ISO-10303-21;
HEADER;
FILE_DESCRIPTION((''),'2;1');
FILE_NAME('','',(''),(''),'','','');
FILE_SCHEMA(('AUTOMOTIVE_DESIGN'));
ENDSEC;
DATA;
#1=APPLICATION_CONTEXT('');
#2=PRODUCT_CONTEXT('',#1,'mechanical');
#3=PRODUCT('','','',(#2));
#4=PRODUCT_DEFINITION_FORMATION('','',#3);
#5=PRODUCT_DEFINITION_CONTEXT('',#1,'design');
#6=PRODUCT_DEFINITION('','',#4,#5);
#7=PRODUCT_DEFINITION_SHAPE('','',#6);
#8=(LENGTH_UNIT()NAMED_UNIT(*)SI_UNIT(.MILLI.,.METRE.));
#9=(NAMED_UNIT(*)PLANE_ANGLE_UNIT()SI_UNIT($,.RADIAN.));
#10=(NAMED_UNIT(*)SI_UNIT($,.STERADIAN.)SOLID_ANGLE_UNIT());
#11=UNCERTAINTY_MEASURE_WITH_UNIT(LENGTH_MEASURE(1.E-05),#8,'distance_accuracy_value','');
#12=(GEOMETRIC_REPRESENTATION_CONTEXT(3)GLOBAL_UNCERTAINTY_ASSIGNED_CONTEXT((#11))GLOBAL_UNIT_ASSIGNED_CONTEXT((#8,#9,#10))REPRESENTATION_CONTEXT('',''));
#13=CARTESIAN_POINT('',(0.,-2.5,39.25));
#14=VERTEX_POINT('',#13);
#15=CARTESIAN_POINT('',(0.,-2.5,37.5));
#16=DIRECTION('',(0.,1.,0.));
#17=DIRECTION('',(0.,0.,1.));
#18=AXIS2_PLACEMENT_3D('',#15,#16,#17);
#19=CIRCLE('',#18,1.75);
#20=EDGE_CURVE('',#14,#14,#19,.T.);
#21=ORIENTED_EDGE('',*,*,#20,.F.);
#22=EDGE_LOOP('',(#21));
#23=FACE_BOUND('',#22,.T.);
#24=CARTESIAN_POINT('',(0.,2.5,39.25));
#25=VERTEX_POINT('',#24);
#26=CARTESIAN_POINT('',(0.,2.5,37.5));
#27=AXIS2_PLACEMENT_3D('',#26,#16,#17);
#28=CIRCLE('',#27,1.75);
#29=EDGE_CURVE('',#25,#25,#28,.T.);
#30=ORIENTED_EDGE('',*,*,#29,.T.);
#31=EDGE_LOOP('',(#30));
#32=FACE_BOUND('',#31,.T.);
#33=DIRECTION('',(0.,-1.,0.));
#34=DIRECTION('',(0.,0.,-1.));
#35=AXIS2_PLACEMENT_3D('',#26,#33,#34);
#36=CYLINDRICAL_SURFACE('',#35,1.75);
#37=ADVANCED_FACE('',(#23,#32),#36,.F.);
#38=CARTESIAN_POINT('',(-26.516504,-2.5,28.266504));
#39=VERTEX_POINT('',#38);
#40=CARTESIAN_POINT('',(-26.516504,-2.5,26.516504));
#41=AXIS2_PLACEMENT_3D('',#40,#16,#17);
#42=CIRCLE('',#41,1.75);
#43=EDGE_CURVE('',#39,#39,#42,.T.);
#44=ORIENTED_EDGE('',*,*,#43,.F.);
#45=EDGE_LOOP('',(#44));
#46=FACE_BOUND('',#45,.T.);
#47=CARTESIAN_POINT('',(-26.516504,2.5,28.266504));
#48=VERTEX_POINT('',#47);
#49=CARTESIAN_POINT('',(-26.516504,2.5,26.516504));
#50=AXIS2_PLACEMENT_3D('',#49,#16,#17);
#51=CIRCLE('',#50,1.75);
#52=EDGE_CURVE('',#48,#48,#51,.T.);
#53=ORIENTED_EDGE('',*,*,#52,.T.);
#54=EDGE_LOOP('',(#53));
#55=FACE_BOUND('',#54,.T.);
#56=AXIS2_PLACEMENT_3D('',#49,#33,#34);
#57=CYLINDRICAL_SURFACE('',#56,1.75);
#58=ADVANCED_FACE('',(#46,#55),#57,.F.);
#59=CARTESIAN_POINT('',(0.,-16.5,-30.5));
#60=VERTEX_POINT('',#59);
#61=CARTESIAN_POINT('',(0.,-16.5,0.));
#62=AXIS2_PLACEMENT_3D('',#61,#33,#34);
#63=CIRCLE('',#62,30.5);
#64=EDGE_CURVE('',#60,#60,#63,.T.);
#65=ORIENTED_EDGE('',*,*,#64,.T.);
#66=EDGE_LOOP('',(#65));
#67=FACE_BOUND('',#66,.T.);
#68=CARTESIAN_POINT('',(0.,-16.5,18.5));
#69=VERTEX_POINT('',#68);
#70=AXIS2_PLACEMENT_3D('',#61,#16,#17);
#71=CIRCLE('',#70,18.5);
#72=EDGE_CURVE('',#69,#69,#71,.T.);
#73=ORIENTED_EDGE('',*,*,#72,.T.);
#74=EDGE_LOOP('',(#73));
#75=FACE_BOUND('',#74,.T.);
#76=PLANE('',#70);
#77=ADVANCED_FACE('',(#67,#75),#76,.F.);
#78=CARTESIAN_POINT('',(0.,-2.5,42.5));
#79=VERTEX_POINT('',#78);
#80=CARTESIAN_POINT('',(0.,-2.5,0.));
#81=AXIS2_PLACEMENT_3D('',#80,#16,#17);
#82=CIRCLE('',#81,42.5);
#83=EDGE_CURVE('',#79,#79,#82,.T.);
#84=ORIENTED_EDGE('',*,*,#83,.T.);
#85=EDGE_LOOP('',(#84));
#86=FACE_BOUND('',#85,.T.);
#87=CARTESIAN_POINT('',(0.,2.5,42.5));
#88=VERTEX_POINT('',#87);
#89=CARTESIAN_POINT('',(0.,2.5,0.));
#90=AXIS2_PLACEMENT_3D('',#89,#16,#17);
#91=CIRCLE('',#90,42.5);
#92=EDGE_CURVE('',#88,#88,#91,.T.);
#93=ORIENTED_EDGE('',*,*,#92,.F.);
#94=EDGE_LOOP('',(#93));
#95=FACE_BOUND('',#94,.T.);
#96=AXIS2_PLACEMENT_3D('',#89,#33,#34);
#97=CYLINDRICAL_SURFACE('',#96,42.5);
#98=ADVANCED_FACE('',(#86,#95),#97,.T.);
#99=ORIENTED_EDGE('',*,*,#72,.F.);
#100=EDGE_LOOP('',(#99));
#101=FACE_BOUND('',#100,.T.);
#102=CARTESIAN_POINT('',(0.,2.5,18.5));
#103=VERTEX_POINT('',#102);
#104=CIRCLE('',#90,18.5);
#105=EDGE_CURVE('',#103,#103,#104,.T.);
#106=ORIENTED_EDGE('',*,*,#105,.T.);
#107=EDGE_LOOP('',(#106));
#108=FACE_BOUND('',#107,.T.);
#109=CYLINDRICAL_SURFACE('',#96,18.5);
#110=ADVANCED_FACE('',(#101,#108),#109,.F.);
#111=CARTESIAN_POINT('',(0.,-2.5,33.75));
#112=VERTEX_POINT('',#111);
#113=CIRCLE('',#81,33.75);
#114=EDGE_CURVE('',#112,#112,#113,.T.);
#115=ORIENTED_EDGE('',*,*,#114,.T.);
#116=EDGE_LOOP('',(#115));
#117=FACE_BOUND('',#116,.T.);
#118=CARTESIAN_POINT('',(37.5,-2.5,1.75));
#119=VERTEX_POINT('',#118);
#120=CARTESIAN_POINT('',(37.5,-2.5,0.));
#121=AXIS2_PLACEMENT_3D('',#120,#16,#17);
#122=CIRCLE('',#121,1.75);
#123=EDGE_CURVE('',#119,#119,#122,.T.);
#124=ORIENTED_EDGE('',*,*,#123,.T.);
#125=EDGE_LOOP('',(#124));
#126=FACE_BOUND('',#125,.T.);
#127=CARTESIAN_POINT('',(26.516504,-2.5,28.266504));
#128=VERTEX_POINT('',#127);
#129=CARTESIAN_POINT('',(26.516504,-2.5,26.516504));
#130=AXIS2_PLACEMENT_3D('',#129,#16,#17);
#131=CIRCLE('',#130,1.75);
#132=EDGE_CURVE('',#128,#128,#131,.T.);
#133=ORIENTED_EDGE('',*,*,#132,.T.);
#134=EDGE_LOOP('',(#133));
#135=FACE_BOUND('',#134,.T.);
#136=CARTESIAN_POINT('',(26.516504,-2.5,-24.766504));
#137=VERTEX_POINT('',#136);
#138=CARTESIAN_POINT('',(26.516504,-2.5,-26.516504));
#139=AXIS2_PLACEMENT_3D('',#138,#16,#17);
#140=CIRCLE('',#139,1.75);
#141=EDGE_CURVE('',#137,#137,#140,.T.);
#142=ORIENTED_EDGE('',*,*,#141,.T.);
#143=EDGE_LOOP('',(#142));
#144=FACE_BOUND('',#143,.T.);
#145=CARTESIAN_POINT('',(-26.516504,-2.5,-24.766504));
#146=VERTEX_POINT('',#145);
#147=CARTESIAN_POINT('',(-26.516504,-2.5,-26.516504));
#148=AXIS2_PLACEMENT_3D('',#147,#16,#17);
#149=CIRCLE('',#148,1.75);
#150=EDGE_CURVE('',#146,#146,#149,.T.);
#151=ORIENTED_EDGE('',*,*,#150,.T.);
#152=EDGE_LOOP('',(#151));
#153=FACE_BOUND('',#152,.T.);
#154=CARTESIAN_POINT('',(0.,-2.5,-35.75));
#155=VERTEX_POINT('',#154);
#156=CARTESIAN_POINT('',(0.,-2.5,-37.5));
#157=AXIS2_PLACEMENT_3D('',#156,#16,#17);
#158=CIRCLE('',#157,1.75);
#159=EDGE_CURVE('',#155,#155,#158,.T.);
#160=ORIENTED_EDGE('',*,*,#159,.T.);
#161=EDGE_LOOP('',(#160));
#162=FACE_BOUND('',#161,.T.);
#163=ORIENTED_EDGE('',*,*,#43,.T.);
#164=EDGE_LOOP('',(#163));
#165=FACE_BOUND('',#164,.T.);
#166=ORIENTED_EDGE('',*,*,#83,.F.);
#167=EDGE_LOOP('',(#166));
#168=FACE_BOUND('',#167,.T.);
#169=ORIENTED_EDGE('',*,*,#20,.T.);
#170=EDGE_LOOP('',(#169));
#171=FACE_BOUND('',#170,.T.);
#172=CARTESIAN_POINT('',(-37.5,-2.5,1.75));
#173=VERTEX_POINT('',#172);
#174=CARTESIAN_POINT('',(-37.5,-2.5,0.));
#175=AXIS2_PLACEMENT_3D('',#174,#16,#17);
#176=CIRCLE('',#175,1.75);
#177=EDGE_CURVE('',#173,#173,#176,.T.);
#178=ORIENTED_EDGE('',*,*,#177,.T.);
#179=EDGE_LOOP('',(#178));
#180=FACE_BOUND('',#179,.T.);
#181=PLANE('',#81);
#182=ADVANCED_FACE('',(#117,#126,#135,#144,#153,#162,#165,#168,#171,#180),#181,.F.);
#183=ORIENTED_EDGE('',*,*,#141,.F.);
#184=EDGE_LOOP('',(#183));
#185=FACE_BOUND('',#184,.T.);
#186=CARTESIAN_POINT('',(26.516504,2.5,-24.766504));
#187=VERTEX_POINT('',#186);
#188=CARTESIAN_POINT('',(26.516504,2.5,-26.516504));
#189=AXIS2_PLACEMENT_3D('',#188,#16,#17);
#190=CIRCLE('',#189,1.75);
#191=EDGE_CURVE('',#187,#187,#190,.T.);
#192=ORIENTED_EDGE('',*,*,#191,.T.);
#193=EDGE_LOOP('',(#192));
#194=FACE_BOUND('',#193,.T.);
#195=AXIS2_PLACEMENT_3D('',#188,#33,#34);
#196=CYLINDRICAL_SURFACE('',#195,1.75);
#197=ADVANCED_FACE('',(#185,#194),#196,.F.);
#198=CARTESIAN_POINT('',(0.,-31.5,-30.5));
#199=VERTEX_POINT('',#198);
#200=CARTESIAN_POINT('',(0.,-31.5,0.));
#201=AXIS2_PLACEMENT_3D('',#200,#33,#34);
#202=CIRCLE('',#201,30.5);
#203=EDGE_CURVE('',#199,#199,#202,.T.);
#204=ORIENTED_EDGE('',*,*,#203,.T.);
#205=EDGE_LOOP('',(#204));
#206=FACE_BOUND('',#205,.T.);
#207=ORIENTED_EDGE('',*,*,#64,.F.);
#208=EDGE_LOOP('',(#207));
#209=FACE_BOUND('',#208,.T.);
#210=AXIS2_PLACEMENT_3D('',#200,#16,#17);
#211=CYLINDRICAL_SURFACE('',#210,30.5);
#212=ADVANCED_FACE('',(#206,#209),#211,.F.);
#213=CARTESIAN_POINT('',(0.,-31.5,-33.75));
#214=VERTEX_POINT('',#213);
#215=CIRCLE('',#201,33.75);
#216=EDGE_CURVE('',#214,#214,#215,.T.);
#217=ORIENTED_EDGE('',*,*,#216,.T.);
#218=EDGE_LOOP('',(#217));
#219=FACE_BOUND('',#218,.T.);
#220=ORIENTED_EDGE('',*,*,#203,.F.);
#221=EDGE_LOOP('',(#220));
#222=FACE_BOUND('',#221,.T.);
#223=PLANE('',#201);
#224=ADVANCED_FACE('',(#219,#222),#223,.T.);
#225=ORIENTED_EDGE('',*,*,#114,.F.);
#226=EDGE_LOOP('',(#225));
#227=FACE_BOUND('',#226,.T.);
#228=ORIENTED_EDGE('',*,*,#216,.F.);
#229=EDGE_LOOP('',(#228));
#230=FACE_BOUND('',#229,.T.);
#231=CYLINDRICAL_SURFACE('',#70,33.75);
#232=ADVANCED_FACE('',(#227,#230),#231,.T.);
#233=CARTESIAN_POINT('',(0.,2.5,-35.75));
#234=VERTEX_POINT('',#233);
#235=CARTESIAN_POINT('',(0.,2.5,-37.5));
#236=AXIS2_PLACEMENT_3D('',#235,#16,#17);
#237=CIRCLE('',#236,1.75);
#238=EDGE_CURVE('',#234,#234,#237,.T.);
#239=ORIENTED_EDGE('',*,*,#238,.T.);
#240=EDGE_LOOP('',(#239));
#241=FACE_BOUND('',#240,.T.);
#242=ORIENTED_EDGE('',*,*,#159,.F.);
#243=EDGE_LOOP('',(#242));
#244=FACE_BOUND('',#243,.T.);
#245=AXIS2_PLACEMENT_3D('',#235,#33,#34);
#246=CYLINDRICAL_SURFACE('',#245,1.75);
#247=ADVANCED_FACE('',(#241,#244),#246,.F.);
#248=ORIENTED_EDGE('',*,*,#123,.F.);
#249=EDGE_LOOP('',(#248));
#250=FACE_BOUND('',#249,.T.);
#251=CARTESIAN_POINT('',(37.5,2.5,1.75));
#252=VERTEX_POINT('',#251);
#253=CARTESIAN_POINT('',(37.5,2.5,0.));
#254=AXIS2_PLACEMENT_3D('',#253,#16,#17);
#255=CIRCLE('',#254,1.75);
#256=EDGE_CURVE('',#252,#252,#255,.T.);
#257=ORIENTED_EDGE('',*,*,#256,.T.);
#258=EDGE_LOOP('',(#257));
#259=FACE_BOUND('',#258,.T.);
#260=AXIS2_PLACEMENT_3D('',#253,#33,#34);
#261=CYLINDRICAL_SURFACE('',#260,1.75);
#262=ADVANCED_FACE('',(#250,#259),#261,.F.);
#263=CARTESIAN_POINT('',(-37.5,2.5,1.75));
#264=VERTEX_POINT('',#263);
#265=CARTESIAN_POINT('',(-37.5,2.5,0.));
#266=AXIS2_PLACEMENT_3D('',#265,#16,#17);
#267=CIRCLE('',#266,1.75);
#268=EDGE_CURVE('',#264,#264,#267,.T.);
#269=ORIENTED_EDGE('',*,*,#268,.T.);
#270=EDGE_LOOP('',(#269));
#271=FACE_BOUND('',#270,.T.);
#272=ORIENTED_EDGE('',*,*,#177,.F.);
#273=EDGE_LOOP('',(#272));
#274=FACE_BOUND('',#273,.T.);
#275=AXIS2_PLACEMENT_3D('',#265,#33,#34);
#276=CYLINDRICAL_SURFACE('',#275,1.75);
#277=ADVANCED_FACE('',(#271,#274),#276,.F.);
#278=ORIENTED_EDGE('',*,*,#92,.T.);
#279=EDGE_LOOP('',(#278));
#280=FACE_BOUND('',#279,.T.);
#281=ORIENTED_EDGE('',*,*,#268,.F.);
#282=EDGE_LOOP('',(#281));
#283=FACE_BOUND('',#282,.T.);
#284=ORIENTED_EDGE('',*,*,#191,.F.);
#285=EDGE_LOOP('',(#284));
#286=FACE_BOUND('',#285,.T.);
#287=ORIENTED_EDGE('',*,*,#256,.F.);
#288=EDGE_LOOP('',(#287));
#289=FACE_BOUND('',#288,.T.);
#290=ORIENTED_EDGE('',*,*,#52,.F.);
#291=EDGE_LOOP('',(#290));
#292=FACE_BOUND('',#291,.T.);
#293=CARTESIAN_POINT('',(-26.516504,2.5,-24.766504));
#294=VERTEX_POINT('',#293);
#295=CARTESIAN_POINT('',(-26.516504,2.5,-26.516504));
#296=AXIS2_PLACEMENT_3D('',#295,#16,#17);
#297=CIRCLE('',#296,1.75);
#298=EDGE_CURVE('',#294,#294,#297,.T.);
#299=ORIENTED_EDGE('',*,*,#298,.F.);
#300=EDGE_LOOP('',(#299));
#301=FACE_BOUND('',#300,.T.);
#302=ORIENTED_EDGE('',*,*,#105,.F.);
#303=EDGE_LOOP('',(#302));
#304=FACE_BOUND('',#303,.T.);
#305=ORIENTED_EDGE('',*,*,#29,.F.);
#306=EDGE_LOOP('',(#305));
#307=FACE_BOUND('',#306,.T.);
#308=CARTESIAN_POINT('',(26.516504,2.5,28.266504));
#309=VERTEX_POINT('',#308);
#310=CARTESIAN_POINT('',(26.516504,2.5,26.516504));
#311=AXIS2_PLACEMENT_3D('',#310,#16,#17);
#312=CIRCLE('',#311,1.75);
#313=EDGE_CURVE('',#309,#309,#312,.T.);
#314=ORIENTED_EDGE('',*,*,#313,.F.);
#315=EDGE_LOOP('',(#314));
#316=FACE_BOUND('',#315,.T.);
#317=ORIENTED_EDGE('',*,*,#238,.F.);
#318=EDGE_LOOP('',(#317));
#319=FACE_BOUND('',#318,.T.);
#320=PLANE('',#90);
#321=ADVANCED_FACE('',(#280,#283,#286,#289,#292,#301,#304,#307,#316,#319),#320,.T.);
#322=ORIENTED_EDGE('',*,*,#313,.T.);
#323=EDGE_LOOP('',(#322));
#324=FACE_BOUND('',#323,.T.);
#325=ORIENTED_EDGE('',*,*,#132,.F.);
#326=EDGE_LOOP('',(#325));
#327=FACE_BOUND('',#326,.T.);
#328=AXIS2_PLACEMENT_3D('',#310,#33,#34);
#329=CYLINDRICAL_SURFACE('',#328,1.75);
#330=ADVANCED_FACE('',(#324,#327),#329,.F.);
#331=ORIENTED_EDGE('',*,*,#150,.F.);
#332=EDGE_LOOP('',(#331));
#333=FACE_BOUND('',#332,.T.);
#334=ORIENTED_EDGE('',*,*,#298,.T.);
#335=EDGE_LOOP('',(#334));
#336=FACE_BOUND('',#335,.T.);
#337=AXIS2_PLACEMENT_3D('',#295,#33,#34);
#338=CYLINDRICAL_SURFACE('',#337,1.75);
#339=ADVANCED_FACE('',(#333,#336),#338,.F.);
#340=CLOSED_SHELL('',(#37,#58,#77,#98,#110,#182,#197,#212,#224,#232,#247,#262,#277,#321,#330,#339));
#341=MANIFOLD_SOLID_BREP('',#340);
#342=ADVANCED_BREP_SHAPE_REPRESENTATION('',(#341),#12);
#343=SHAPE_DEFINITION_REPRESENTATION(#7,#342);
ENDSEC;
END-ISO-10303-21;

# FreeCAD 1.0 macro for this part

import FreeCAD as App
import Part
import Sketcher

doc = App.newDocument("Part")
body = doc.addObject("PartDesign::Body", "Body")

sketch1 = body.newObject("Sketcher::SketchObject", "Sketch")
sketch1.AttachmentSupport = (doc.getObject("XZ_Plane"), [""])
sketch1.MapMode = "FlatFace"
sketch1.addGeometry(Part.Circle(App.Vector(0, 0, 0), App.Vector(0, 0, 1), 42.5), False)
sketch1.addGeometry(Part.Circle(App.Vector(-26.5, -26.5, 0), App.Vector(0, 0, 1), 1.8), False)
sketch1.addGeometry(Part.Circle(App.Vector(0, -37.5, 0), App.Vector(0, 0, 1), 1.8), False)
sketch1.addGeometry(Part.Circle(App.Vector(-37.5, 0, 0), App.Vector(0, 0, 1), 1.8), False)
sketch1.addGeometry(Part.Circle(App.Vector(-26.5, 26.5, 0), App.Vector(0, 0, 1), 1.8), False)
sketch1.addGeometry(Part.Circle(App.Vector(26.5, -26.5, 0), App.Vector(0, 0, 1), 1.8), False)
sketch1.addGeometry(Part.Circle(App.Vector(37.5, 0, 0), App.Vector(0, 0, 1), 1.8), False)
sketch1.addGeometry(Part.Circle(App.Vector(0, 0, 0), App.Vector(0, 0, 1), 18.5), False)
sketch1.addGeometry(Part.Circle(App.Vector(0, 37.5, 0), App.Vector(0, 0, 1), 1.8), False)
sketch1.addGeometry(Part.Circle(App.Vector(26.5, 26.5, 0), App.Vector(0, 0, 1), 1.8), False)
sketch1.addConstraint(Sketcher.Constraint("Coincident", 0, 3, -1, 1))
sketch1.addConstraint(Sketcher.Constraint("Coincident", 7, 3, -1, 1))
sketch1.addConstraint(Sketcher.Constraint("Equal", 1, 2))
sketch1.addConstraint(Sketcher.Constraint("Equal", 2, 3))
sketch1.addConstraint(Sketcher.Constraint("Equal", 3, 4))
sketch1.addConstraint(Sketcher.Constraint("Equal", 4, 5))
sketch1.addConstraint(Sketcher.Constraint("Equal", 5, 6))
sketch1.addConstraint(Sketcher.Constraint("Equal", 6, 8))
sketch1.addConstraint(Sketcher.Constraint("Equal", 8, 9))
sketch1.addConstraint(Sketcher.Constraint("Symmetric", 4, 3, 5, 3, -1, 1))
sketch1.addConstraint(Sketcher.Constraint("Symmetric", 3, 3, 6, 3, -1, 1))
sketch1.addConstraint(Sketcher.Constraint("Symmetric", 2, 3, 8, 3, -1, 1))
sketch1.addConstraint(Sketcher.Constraint("Symmetric", 1, 3, 9, 3, -1, 1))
sketch1.addConstraint(Sketcher.Constraint("Symmetric", 1, 3, 5, 3, -2))
sketch1.addConstraint(Sketcher.Constraint("PointOnObject", 2, 3, -2))
sketch1.addConstraint(Sketcher.Constraint("PointOnObject", 3, 3, -1))
sketch1.addConstraint(Sketcher.Constraint("Diameter", 0, 85.0))
sketch1.addConstraint(Sketcher.Constraint("Diameter", 7, 37.0))
sketch1.addConstraint(Sketcher.Constraint("Diameter", 1, 3.5))
sketch1.addConstraint(Sketcher.Constraint("DistanceY", 2, 3, -1, 1, 37.5))
sketch1.addConstraint(Sketcher.Constraint("DistanceX", 3, 3, -1, 1, 37.5))
sketch1.addConstraint(Sketcher.Constraint("DistanceY", 1, 3, 4, 3, 53.033009))
sketch1.addConstraint(Sketcher.Constraint("DistanceX", 1, 3, 5, 3, 53.033009))
pad1 = body.newObject("PartDesign::Pad", "Pad")
pad1.Profile = sketch1
pad1.Length = 5
pad1.Midplane = True

sketch2 = body.newObject("Sketcher::SketchObject", "Sketch001")
sketch2.AttachmentSupport = (doc.getObject("XZ_Plane"), [""])
sketch2.MapMode = "FlatFace"
sketch2.AttachmentOffset = App.Placement(App.Vector(0, 0, 16.5), App.Rotation())
sketch2.addGeometry(Part.Circle(App.Vector(0, 0, 0), App.Vector(0, 0, 1), 34), False)
sketch2.addGeometry(Part.Circle(App.Vector(0, 0, 0), App.Vector(0, 0, 1), 18), False)
sketch2.addConstraint(Sketcher.Constraint("Coincident", 0, 3, -1, 1))
sketch2.addConstraint(Sketcher.Constraint("Coincident", 1, 3, -1, 1))
sketch2.addConstraint(Sketcher.Constraint("Diameter", 1, 37.0))
sketch2.addConstraint(Sketcher.Constraint("Diameter", 0, 67.5))
pad2 = body.newObject("PartDesign::Pad", "Pad001")
pad2.Profile = sketch2
pad2.Length = 14
pad2.Reversed = True

sketch3 = body.newObject("Sketcher::SketchObject", "Sketch002")
sketch3.AttachmentSupport = (doc.getObject("XZ_Plane"), [""])
sketch3.MapMode = "FlatFace"
sketch3.AttachmentOffset = App.Placement(App.Vector(0, 0, 31.5), App.Rotation())
sketch3.addGeometry(Part.Circle(App.Vector(0, 0, 0), App.Vector(0, 0, 1), 34), False)
sketch3.addGeometry(Part.Circle(App.Vector(0, 0, 0), App.Vector(0, 0, 1), 30), False)
sketch3.addConstraint(Sketcher.Constraint("Coincident", 0, 3, -1, 1))
sketch3.addConstraint(Sketcher.Constraint("Coincident", 1, 3, -1, 1))
sketch3.addConstraint(Sketcher.Constraint("Diameter", 1, 61.0))
sketch3.addConstraint(Sketcher.Constraint("Diameter", 0, 67.5))
pad3 = body.newObject("PartDesign::Pad", "Pad002")
pad3.Profile = sketch3
pad3.Length = 15
pad3.Reversed = True

doc.recompute()
